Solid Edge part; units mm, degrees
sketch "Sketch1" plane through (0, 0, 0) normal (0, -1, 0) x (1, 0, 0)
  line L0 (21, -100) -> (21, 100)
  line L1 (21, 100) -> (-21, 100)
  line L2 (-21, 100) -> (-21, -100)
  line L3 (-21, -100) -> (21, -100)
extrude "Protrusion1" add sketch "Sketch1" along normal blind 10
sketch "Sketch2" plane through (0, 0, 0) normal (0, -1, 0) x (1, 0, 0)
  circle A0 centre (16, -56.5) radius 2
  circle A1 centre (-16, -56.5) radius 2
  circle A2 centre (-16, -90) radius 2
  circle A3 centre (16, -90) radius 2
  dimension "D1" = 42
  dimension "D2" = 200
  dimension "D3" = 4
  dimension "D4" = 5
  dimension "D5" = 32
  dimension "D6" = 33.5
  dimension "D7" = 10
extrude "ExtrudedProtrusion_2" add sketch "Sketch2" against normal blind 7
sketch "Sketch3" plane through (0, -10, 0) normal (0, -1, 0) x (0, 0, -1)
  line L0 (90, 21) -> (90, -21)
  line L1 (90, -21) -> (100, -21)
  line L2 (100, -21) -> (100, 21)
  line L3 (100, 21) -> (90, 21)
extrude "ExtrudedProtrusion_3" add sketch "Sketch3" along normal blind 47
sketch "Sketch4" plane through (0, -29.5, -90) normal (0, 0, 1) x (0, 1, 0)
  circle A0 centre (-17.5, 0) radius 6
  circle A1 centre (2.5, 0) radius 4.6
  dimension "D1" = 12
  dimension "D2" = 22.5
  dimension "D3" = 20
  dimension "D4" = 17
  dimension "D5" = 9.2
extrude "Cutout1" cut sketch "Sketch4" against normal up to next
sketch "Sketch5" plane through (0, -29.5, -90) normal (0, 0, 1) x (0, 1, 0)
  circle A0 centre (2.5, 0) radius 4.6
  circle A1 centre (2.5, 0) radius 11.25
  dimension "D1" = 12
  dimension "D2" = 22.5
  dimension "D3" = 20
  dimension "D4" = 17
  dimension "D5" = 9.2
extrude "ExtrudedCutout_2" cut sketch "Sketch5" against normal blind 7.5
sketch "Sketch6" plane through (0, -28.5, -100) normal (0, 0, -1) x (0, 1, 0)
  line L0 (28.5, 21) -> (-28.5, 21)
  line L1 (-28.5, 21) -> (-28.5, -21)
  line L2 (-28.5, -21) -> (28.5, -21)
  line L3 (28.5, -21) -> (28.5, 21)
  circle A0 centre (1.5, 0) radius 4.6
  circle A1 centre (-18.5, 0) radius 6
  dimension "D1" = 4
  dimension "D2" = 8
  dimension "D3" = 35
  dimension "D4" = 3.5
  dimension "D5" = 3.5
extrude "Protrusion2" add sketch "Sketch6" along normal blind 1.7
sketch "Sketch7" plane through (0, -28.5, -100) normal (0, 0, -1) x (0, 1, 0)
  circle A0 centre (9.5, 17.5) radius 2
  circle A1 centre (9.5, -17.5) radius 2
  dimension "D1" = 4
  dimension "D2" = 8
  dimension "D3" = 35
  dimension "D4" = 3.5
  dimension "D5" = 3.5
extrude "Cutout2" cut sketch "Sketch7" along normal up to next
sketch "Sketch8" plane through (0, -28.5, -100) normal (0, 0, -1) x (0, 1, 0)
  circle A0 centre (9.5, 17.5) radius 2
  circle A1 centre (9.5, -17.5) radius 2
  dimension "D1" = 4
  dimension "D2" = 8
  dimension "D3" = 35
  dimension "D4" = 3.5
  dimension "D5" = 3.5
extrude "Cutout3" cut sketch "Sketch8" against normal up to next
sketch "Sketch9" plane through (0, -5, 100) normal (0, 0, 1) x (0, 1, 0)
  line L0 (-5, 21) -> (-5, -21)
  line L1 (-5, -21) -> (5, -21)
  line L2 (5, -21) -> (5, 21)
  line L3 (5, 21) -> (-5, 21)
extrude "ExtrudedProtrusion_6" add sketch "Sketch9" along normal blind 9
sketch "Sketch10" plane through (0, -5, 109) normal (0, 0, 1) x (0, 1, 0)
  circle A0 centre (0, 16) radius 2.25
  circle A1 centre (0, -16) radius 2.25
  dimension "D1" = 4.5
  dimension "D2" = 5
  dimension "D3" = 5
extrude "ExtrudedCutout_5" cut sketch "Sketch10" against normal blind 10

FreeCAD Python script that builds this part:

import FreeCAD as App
import Part
import Sketcher
Q = App.Units.Quantity


def add_polygon(sketch, points):
    """Adds a closed chain of lines whose ends are joined by coincident constraints."""
    first, n = sketch.GeometryCount, len(points)
    for a, b in zip(points, points[1:] + points[:1]):
        sketch.addGeometry(Part.LineSegment(App.Vector(*a, 0), App.Vector(*b, 0)), False)
    for i in range(n):
        sketch.addConstraint(Sketcher.Constraint("Coincident", first + i, 2, first + (i + 1) % n, 1))

doc = App.newDocument("Part")
body = doc.addObject("PartDesign::Body", "Body")

# Sketch on XZ plane
sketch1 = doc.addObject("Sketcher::SketchObject", "Sketch")
body.addObject(sketch1)
sketch1.AttachmentSupport = (doc.XZ_Plane, [""])
sketch1.MapMode = "FlatFace"
add_polygon(sketch1, [(-21, -100), (21, -100), (21, 100), (-21, 100)])  # lines 0-3
sketch1.addConstraint(Sketcher.Constraint("Horizontal", 0))
sketch1.addConstraint(Sketcher.Constraint("Vertical", 1))
sketch1.addConstraint(Sketcher.Constraint("Horizontal", 2))
sketch1.addConstraint(Sketcher.Constraint("Vertical", 3))
sketch1.addConstraint(Sketcher.Constraint("Symmetric", 0, 2, 2, 2, -1, 1))
sketch1.addConstraint(Sketcher.Constraint("DistanceX", 0, 1, 0, 2, Q("42 mm")))
sketch1.addConstraint(Sketcher.Constraint("DistanceY", 1, 1, 1, 2, Q("200 mm")))
pad1 = doc.addObject("PartDesign::Pad", "Pad")
body.addObject(pad1)
pad1.Profile = sketch1
pad1.Length = 10

# Sketch on XZ plane
sketch2 = doc.addObject("Sketcher::SketchObject", "Sketch001")
body.addObject(sketch2)
sketch2.AttachmentSupport = (doc.XZ_Plane, [""])
sketch2.MapMode = "FlatFace"
sketch2.addGeometry(Part.Circle(App.Vector(16, -56.5, 0), App.Vector(0, 0, 1), 2), False)
sketch2.addGeometry(Part.Circle(App.Vector(-16, -56.5, 0), App.Vector(0, 0, 1), 2), False)
sketch2.addGeometry(Part.Circle(App.Vector(-16, -90, 0), App.Vector(0, 0, 1), 2), False)
sketch2.addGeometry(Part.Circle(App.Vector(16, -90, 0), App.Vector(0, 0, 1), 2), False)
sketch2.addConstraint(Sketcher.Constraint("Equal", 0, 1))
sketch2.addConstraint(Sketcher.Constraint("Equal", 1, 2))
sketch2.addConstraint(Sketcher.Constraint("Equal", 2, 3))
sketch2.addConstraint(Sketcher.Constraint("Symmetric", 0, 3, 1, 3, -2))
sketch2.addConstraint(Sketcher.Constraint("Symmetric", 2, 3, 3, 3, -2))
sketch2.addConstraint(Sketcher.Constraint("Vertical", 1, 3, 2, 3))
sketch2.addConstraint(Sketcher.Constraint("Diameter", 0, Q("4 mm")))
sketch2.addConstraint(Sketcher.Constraint("DistanceX", -1, 1, 0, 3, Q("16 mm")))
sketch2.addConstraint(Sketcher.Constraint("DistanceY", 2, 3, -1, 1, Q("90 mm")))
sketch2.addConstraint(Sketcher.Constraint("DistanceY", 0, 3, -1, 1, Q("56.5 mm")))
pad2 = doc.addObject("PartDesign::Pad", "Pad001")
body.addObject(pad2)
pad2.Profile = sketch2
pad2.Length = 7
pad2.Reversed = True

# Sketch on XZ plane
sketch3 = doc.addObject("Sketcher::SketchObject", "Sketch002")
body.addObject(sketch3)
sketch3.AttachmentSupport = (doc.XZ_Plane, [""])
sketch3.MapMode = "FlatFace"
sketch3.AttachmentOffset = App.Placement(App.Vector(0, 0, 10), App.Rotation())
add_polygon(sketch3, [(21, -100), (21, -90), (-21, -90), (-21, -100)])  # lines 0-3
sketch3.addConstraint(Sketcher.Constraint("Vertical", 0))
sketch3.addConstraint(Sketcher.Constraint("Horizontal", 1))
sketch3.addConstraint(Sketcher.Constraint("Vertical", 2))
sketch3.addConstraint(Sketcher.Constraint("Horizontal", 3))
sketch3.addConstraint(Sketcher.Constraint("DistanceX", 1, 2, 1, 1, Q("42 mm")))
sketch3.addConstraint(Sketcher.Constraint("DistanceY", 0, 1, 0, 2, Q("10 mm")))
sketch3.addConstraint(Sketcher.Constraint("DistanceX", -1, 1, 0, 2, Q("21 mm")))
sketch3.addConstraint(Sketcher.Constraint("DistanceY", 0, 2, -1, 1, Q("90 mm")))
pad3 = doc.addObject("PartDesign::Pad", "Pad002")
body.addObject(pad3)
pad3.Profile = sketch3
pad3.Length = 47

# Sketch on XY plane
sketch4 = doc.addObject("Sketcher::SketchObject", "Sketch003")
body.addObject(sketch4)
sketch4.AttachmentSupport = (doc.XY_Plane, [""])
sketch4.MapMode = "FlatFace"
sketch4.AttachmentOffset = App.Placement(App.Vector(0, 0, -90), App.Rotation())
sketch4.addGeometry(Part.Circle(App.Vector(0, -47, 0), App.Vector(0, 0, 1), 6), False)
sketch4.addGeometry(Part.Circle(App.Vector(0, -27, 0), App.Vector(0, 0, 1), 4.6), False)
sketch4.addConstraint(Sketcher.Constraint("PointOnObject", 0, 3, -2))
sketch4.addConstraint(Sketcher.Constraint("PointOnObject", 1, 3, -2))
sketch4.addConstraint(Sketcher.Constraint("Diameter", 0, Q("12 mm")))
sketch4.addConstraint(Sketcher.Constraint("Diameter", 1, Q("9.2 mm")))
sketch4.addConstraint(Sketcher.Constraint("DistanceY", 0, 3, -1, 1, Q("47 mm")))
sketch4.addConstraint(Sketcher.Constraint("DistanceY", 1, 3, -1, 1, Q("27 mm")))
pocket1 = doc.addObject("PartDesign::Pocket", "Pocket")
body.addObject(pocket1)
pocket1.Profile = sketch4
pocket1.Type = "UpToFirst"

# Sketch on XY plane
sketch5 = doc.addObject("Sketcher::SketchObject", "Sketch004")
body.addObject(sketch5)
sketch5.AttachmentSupport = (doc.XY_Plane, [""])
sketch5.MapMode = "FlatFace"
sketch5.AttachmentOffset = App.Placement(App.Vector(0, 0, -90), App.Rotation())
sketch5.addGeometry(Part.Circle(App.Vector(0, -27, 0), App.Vector(0, 0, 1), 11.25), False)
sketch5.addGeometry(Part.Circle(App.Vector(0, -27, 0), App.Vector(0, 0, 1), 4.6), False)
sketch5.addConstraint(Sketcher.Constraint("Coincident", 1, 3, 0, 3))
sketch5.addConstraint(Sketcher.Constraint("PointOnObject", 0, 3, -2))
sketch5.addConstraint(Sketcher.Constraint("Diameter", 0, Q("22.5 mm")))
sketch5.addConstraint(Sketcher.Constraint("Diameter", 1, Q("9.2 mm")))
sketch5.addConstraint(Sketcher.Constraint("DistanceY", 0, 3, -1, 1, Q("27 mm")))
pocket2 = doc.addObject("PartDesign::Pocket", "Pocket001")
body.addObject(pocket2)
pocket2.Profile = sketch5
pocket2.Length = 7.5

# Sketch on XY plane
sketch6 = doc.addObject("Sketcher::SketchObject", "Sketch005")
body.addObject(sketch6)
sketch6.AttachmentSupport = (doc.XY_Plane, [""])
sketch6.MapMode = "FlatFace"
sketch6.AttachmentOffset = App.Placement(App.Vector(0, 0, -100), App.Rotation())
add_polygon(sketch6, [(-21, 0), (21, 0), (21, -57), (-21, -57)])  # lines 0-3
sketch6.addGeometry(Part.Circle(App.Vector(0, -47, 0), App.Vector(0, 0, 1), 6), False)  # 4
sketch6.addGeometry(Part.Circle(App.Vector(0, -27, 0), App.Vector(0, 0, 1), 4.6), False)  # 5
sketch6.addConstraint(Sketcher.Constraint("Horizontal", 0))
sketch6.addConstraint(Sketcher.Constraint("Vertical", 1))
sketch6.addConstraint(Sketcher.Constraint("Horizontal", 2))
sketch6.addConstraint(Sketcher.Constraint("Vertical", 3))
sketch6.addConstraint(Sketcher.Constraint("Symmetric", 0, 2, 3, 2, -1, 1))
sketch6.addConstraint(Sketcher.Constraint("PointOnObject", 4, 3, -2))
sketch6.addConstraint(Sketcher.Constraint("PointOnObject", 5, 3, -2))
sketch6.addConstraint(Sketcher.Constraint("Diameter", 4, Q("12 mm")))
sketch6.addConstraint(Sketcher.Constraint("Diameter", 5, Q("9.2 mm")))
sketch6.addConstraint(Sketcher.Constraint("DistanceX", 0, 1, 0, 2, Q("42 mm")))
sketch6.addConstraint(Sketcher.Constraint("DistanceY", 1, 2, 1, 1, Q("57 mm")))
sketch6.addConstraint(Sketcher.Constraint("DistanceY", 4, 3, -1, 1, Q("47 mm")))
sketch6.addConstraint(Sketcher.Constraint("DistanceY", 5, 3, -1, 1, Q("27 mm")))
pad4 = doc.addObject("PartDesign::Pad", "Pad003")
body.addObject(pad4)
pad4.Profile = sketch6
pad4.Length = 1.7
pad4.Reversed = True

# Sketch on XY plane
sketch7 = doc.addObject("Sketcher::SketchObject", "Sketch006")
body.addObject(sketch7)
sketch7.AttachmentSupport = (doc.XY_Plane, [""])
sketch7.MapMode = "FlatFace"
sketch7.AttachmentOffset = App.Placement(App.Vector(0, 0, -100), App.Rotation())
sketch7.addGeometry(Part.Circle(App.Vector(17.5, -19, 0), App.Vector(0, 0, 1), 2), False)
sketch7.addGeometry(Part.Circle(App.Vector(-17.5, -19, 0), App.Vector(0, 0, 1), 2), False)
sketch7.addConstraint(Sketcher.Constraint("Equal", 0, 1))
sketch7.addConstraint(Sketcher.Constraint("Symmetric", 0, 3, 1, 3, -2))
sketch7.addConstraint(Sketcher.Constraint("Diameter", 0, Q("4 mm")))
sketch7.addConstraint(Sketcher.Constraint("DistanceY", 0, 3, -1, 1, Q("19 mm")))
sketch7.addConstraint(Sketcher.Constraint("DistanceX", 1, 3, 0, 3, Q("35 mm")))
pocket3 = doc.addObject("PartDesign::Pocket", "Pocket002")
body.addObject(pocket3)
pocket3.Profile = sketch7
pocket3.Type = "UpToFirst"

# Sketch on XY plane
sketch8 = doc.addObject("Sketcher::SketchObject", "Sketch007")
body.addObject(sketch8)
sketch8.AttachmentSupport = (doc.XY_Plane, [""])
sketch8.MapMode = "FlatFace"
sketch8.AttachmentOffset = App.Placement(App.Vector(0, 0, -100), App.Rotation())
sketch8.addGeometry(Part.Circle(App.Vector(17.5, -19, 0), App.Vector(0, 0, 1), 2), False)
sketch8.addGeometry(Part.Circle(App.Vector(-17.5, -19, 0), App.Vector(0, 0, 1), 2), False)
sketch8.addConstraint(Sketcher.Constraint("Equal", 0, 1))
sketch8.addConstraint(Sketcher.Constraint("Symmetric", 0, 3, 1, 3, -2))
sketch8.addConstraint(Sketcher.Constraint("Diameter", 0, Q("4 mm")))
sketch8.addConstraint(Sketcher.Constraint("DistanceY", 0, 3, -1, 1, Q("19 mm")))
sketch8.addConstraint(Sketcher.Constraint("DistanceX", 1, 3, 0, 3, Q("35 mm")))
pocket4 = doc.addObject("PartDesign::Pocket", "Pocket003")
body.addObject(pocket4)
pocket4.Profile = sketch8
pocket4.Length = 10
pocket4.Reversed = True

# Sketch on XY plane
sketch9 = doc.addObject("Sketcher::SketchObject", "Sketch008")
body.addObject(sketch9)
sketch9.AttachmentSupport = (doc.XY_Plane, [""])
sketch9.MapMode = "FlatFace"
sketch9.AttachmentOffset = App.Placement(App.Vector(0, 0, 100), App.Rotation())
add_polygon(sketch9, [(-21, 0), (-21, -10), (21, -10), (21, 0)])  # lines 0-3
sketch9.addConstraint(Sketcher.Constraint("Vertical", 0))
sketch9.addConstraint(Sketcher.Constraint("Horizontal", 1))
sketch9.addConstraint(Sketcher.Constraint("Vertical", 2))
sketch9.addConstraint(Sketcher.Constraint("Horizontal", 3))
sketch9.addConstraint(Sketcher.Constraint("Symmetric", 2, 2, 3, 2, -1, 1))
sketch9.addConstraint(Sketcher.Constraint("DistanceX", 1, 1, 1, 2, Q("42 mm")))
sketch9.addConstraint(Sketcher.Constraint("DistanceY", 0, 2, 0, 1, Q("10 mm")))
pad5 = doc.addObject("PartDesign::Pad", "Pad004")
body.addObject(pad5)
pad5.Profile = sketch9
pad5.Length = 9

# Sketch on XY plane
sketch10 = doc.addObject("Sketcher::SketchObject", "Sketch009")
body.addObject(sketch10)
sketch10.AttachmentSupport = (doc.XY_Plane, [""])
sketch10.MapMode = "FlatFace"
sketch10.AttachmentOffset = App.Placement(App.Vector(0, 0, 109), App.Rotation())
sketch10.addGeometry(Part.Circle(App.Vector(-16, -5, 0), App.Vector(0, 0, 1), 2.25), False)
sketch10.addGeometry(Part.Circle(App.Vector(16, -5, 0), App.Vector(0, 0, 1), 2.25), False)
sketch10.addConstraint(Sketcher.Constraint("Equal", 0, 1))
sketch10.addConstraint(Sketcher.Constraint("Symmetric", 0, 3, 1, 3, -2))
sketch10.addConstraint(Sketcher.Constraint("Diameter", 0, Q("4.5 mm")))
sketch10.addConstraint(Sketcher.Constraint("DistanceX", 0, 3, -1, 1, Q("16 mm")))
sketch10.addConstraint(Sketcher.Constraint("DistanceY", 0, 3, -1, 1, Q("5 mm")))
pocket5 = doc.addObject("PartDesign::Pocket", "Pocket004")
body.addObject(pocket5)
pocket5.Profile = sketch10
pocket5.Length = 10

doc.recompute()
